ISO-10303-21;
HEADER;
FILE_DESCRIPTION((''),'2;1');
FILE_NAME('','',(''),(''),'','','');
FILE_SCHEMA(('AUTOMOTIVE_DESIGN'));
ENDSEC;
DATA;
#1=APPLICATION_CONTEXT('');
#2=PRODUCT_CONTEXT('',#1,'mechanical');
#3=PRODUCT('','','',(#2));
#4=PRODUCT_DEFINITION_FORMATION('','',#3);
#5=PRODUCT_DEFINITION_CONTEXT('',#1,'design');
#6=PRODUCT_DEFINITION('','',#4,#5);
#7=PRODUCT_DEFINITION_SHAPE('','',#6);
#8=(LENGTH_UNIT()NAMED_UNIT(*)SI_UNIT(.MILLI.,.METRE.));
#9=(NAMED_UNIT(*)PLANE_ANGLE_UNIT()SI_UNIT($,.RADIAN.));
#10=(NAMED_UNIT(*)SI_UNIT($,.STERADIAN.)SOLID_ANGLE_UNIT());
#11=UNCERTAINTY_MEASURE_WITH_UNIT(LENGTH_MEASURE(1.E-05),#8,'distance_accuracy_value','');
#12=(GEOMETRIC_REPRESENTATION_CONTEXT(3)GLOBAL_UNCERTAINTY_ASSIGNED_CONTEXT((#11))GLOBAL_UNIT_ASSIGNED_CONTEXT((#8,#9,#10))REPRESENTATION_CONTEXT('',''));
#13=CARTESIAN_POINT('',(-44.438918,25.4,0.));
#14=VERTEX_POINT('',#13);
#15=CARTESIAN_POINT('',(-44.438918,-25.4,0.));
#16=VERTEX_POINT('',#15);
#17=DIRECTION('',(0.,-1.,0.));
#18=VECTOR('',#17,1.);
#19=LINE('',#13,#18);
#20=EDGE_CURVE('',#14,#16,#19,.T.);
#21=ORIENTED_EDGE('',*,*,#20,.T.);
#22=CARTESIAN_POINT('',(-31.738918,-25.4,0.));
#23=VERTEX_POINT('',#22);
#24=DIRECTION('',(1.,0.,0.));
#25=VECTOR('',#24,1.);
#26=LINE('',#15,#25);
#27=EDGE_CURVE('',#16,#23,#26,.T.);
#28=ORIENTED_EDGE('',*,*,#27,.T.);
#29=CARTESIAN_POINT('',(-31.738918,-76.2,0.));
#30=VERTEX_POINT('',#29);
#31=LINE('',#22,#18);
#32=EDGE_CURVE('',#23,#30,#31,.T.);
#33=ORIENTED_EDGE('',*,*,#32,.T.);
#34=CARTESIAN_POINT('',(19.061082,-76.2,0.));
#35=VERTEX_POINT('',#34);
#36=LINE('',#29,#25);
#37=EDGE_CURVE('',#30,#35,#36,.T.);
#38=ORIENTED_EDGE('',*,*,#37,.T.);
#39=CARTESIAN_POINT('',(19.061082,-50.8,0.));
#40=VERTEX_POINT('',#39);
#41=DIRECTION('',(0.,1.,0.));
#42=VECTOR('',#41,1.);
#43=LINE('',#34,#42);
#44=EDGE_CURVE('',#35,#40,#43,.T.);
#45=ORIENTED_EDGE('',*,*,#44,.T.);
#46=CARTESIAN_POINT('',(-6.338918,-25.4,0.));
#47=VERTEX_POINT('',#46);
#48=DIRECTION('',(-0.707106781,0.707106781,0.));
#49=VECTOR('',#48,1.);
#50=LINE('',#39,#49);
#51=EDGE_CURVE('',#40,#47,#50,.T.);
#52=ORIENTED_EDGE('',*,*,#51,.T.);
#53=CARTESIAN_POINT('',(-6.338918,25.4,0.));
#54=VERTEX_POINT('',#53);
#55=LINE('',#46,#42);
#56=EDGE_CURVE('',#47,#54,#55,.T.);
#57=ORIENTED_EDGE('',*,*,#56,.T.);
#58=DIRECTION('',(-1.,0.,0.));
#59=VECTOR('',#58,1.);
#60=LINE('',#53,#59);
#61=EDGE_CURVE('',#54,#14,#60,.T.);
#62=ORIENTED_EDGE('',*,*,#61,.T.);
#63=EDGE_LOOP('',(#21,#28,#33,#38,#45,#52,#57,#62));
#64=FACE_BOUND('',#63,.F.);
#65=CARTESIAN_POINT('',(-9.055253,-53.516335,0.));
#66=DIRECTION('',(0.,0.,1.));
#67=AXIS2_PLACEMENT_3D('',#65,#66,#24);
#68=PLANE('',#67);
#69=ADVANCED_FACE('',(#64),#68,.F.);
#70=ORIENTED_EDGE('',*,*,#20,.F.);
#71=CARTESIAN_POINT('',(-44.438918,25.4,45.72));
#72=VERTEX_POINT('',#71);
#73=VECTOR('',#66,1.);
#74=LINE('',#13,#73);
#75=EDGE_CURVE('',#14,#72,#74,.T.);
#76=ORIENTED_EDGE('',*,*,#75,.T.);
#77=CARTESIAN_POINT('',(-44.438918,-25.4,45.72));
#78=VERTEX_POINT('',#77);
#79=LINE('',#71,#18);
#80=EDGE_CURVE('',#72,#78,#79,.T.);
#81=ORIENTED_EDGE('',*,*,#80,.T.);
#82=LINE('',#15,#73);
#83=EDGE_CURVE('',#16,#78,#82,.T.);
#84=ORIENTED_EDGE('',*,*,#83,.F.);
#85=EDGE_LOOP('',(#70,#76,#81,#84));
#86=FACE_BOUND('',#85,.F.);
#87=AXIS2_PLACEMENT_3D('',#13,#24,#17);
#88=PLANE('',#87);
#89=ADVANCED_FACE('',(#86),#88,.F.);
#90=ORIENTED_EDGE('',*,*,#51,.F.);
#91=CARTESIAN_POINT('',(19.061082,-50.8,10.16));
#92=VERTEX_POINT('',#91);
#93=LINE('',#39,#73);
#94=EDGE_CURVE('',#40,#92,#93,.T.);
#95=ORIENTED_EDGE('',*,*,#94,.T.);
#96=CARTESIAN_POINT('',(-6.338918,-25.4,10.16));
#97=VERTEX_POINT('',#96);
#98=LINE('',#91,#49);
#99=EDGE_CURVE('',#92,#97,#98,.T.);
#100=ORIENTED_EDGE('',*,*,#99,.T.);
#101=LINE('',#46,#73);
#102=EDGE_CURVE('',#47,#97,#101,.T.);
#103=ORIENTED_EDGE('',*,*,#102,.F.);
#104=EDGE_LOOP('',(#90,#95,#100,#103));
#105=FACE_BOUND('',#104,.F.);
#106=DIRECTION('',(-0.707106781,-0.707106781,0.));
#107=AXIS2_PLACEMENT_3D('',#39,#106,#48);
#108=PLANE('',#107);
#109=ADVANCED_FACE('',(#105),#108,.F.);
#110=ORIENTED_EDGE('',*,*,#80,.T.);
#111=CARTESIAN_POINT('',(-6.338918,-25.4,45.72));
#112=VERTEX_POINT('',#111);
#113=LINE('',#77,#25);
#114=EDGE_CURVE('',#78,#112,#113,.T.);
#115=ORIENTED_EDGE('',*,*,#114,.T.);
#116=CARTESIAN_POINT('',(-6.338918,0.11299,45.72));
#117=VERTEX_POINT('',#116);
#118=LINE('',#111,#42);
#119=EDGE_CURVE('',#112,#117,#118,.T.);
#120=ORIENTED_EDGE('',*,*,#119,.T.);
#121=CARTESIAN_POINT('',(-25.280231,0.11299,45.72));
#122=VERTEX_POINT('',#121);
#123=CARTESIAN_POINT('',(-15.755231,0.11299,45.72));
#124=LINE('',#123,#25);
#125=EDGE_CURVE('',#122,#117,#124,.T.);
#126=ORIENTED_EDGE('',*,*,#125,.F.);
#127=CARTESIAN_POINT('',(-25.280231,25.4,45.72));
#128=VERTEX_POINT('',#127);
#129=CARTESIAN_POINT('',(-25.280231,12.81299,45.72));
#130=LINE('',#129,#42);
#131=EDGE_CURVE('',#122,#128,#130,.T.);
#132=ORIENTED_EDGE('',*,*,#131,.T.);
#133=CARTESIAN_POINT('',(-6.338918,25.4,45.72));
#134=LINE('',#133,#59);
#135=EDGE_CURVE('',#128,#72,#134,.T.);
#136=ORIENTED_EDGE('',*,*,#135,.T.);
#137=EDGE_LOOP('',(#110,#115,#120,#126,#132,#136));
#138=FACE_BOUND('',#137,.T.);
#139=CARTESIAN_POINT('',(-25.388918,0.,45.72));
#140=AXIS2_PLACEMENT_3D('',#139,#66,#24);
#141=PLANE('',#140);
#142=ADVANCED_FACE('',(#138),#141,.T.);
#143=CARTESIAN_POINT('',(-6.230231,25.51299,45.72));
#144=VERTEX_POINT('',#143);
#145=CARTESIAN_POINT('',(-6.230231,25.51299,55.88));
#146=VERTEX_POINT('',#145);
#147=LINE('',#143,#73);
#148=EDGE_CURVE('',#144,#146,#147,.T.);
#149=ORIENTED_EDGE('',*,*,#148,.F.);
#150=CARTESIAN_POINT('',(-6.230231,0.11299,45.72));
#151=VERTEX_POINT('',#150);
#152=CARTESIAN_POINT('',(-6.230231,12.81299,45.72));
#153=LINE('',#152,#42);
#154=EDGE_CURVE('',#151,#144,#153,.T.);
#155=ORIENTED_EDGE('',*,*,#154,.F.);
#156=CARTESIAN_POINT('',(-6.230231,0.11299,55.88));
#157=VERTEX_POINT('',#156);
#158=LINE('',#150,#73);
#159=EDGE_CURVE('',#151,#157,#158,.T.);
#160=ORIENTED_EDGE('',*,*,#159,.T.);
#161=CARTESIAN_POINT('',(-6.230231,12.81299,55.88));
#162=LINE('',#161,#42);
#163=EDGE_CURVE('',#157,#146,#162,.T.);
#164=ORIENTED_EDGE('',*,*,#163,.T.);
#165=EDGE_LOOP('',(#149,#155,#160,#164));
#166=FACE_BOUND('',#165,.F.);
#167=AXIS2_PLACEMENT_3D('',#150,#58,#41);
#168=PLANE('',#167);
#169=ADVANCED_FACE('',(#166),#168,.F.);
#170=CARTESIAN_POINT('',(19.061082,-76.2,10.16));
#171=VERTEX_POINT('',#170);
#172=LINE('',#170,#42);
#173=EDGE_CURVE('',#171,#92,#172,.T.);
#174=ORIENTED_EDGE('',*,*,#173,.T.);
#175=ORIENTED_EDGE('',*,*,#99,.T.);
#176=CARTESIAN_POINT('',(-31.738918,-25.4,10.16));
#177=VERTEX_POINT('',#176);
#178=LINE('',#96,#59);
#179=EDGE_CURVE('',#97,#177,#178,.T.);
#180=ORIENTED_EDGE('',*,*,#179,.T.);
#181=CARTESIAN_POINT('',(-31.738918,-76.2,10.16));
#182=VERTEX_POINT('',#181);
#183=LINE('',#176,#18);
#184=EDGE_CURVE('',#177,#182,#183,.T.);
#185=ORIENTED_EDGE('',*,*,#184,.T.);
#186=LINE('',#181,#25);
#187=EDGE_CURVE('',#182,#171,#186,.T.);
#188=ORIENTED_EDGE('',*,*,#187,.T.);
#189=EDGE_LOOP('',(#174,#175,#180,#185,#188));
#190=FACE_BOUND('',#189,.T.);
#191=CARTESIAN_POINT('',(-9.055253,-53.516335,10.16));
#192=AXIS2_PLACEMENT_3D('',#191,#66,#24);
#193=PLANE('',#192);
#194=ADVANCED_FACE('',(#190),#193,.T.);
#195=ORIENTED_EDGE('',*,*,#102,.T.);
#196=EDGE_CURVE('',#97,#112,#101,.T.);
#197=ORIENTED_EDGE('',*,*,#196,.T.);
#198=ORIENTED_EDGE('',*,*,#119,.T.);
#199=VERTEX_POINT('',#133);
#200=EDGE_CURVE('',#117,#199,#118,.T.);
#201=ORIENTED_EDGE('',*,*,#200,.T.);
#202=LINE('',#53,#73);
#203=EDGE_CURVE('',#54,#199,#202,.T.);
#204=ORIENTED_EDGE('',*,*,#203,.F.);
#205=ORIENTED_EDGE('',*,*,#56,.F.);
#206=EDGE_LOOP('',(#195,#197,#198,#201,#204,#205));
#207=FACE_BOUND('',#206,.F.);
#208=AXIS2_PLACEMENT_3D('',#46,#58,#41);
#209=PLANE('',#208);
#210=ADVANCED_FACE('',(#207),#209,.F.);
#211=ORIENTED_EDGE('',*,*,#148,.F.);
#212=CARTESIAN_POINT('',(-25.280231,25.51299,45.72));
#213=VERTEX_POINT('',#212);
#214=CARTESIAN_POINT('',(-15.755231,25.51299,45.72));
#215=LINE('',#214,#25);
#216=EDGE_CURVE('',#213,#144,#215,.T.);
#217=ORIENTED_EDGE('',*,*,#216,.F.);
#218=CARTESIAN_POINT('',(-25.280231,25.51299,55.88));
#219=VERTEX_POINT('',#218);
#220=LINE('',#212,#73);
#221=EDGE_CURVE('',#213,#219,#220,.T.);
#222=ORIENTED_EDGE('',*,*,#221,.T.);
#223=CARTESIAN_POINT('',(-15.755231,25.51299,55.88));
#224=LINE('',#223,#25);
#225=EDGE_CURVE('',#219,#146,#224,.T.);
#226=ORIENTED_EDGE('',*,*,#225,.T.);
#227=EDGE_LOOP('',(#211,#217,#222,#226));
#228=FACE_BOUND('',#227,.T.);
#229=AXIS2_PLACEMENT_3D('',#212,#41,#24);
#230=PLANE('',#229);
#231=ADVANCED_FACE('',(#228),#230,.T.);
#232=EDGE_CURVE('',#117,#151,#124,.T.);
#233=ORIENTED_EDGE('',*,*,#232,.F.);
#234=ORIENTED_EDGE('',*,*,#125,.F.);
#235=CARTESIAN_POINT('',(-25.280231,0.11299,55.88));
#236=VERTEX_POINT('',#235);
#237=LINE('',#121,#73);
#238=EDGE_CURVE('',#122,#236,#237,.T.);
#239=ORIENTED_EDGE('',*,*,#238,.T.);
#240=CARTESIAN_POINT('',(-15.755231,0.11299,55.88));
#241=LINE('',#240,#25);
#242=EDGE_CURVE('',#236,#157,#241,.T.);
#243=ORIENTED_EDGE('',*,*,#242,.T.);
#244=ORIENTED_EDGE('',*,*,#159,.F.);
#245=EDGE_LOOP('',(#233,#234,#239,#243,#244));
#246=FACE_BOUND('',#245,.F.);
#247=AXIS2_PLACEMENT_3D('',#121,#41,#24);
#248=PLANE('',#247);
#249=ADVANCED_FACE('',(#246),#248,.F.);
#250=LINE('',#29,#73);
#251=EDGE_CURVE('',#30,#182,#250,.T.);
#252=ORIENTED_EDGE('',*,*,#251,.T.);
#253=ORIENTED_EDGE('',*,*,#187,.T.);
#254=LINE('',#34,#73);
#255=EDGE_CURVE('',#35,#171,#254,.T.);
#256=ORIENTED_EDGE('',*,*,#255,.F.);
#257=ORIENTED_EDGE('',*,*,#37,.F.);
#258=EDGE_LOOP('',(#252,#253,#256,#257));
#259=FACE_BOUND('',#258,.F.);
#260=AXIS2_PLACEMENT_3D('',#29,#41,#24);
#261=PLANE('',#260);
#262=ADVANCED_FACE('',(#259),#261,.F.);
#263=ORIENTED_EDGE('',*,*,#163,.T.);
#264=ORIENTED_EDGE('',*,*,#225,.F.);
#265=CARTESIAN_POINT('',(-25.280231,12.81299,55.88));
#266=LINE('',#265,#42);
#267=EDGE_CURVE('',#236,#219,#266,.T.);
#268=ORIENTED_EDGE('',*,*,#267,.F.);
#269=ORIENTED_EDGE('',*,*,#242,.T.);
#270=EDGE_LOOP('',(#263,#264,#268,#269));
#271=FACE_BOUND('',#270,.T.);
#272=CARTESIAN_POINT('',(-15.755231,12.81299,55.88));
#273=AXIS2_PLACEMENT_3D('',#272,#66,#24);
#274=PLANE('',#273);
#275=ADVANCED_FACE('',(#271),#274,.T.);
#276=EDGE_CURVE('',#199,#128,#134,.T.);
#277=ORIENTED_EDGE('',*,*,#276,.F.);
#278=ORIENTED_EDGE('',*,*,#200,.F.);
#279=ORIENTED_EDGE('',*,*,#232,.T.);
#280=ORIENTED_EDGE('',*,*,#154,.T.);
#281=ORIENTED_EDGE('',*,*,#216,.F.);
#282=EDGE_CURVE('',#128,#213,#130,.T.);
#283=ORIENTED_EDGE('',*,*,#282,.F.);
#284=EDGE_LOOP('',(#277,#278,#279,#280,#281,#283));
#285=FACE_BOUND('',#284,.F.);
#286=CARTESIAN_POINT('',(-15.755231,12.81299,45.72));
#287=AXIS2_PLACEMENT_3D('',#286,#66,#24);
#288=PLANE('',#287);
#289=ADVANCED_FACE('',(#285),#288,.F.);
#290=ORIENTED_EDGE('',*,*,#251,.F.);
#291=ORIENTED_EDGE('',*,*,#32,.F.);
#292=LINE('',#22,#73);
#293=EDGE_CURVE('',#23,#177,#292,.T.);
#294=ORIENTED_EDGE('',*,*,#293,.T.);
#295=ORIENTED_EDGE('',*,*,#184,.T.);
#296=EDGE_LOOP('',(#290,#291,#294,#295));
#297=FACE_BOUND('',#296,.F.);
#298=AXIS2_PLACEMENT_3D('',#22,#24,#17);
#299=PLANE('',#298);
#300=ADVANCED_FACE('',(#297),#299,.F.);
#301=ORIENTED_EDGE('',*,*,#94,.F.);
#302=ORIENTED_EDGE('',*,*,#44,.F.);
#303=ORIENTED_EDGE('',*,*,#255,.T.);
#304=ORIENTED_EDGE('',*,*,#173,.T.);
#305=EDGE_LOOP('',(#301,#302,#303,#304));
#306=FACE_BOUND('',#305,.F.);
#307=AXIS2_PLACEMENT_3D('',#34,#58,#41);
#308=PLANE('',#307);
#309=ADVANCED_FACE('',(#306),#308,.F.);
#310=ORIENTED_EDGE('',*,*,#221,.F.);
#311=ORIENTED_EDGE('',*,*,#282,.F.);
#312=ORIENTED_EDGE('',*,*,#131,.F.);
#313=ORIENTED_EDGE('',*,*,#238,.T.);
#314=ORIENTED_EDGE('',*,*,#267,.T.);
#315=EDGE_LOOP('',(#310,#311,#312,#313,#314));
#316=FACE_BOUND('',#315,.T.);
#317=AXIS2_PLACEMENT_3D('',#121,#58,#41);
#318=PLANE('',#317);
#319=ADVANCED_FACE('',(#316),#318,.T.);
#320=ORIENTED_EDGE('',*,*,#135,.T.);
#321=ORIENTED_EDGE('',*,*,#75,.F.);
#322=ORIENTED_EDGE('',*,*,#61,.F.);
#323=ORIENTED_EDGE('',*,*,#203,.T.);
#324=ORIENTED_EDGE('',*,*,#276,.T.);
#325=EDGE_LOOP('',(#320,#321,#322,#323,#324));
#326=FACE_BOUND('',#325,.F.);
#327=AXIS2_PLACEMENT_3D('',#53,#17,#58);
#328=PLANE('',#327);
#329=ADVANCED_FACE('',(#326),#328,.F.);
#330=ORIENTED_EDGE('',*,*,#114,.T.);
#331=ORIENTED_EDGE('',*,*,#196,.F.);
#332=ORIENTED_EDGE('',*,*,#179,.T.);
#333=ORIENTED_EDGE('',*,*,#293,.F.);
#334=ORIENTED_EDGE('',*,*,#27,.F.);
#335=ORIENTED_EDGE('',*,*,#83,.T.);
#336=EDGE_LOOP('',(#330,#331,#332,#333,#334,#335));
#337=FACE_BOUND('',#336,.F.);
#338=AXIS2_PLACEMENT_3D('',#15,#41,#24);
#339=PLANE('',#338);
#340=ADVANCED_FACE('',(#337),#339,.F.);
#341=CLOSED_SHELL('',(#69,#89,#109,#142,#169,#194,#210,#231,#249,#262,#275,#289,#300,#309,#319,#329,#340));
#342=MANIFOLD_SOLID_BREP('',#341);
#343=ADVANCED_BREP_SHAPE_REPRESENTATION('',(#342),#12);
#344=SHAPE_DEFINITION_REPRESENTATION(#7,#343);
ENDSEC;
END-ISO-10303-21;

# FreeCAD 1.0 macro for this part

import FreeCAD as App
import Part
import Sketcher
Q = App.Units.Quantity

doc = App.newDocument("Part")
params = doc.addObject("Spreadsheet::Sheet", "Params")
for row, (alias, value) in enumerate([
    ("sketch1_height", "2 in"),
    ("sketch1_width", "1.5 in"),
    ("pad1_length", "1.8 in"),
    ("sketch2_width", "1 in"),
    ("sketch2_width2", "2 in"),
    ("pad2_length", "0.4 in"),
    ("sketch3_height", "1 in"),
    ("sketch3_width", "0.75 in"),
    ("pad3_length", "0.4 in"),
], start=1):
    params.set(f"A{row}", alias)
    params.set(f"B{row}", "=" + value)
    params.setAlias(f"B{row}", alias)

body = doc.addObject("PartDesign::Body", "Body")

sketch1 = body.newObject("Sketcher::SketchObject", "Sketch")
sketch1.AttachmentSupport = (doc.getObject("XY_Plane"), [""])
sketch1.MapMode = "FlatFace"
sketch1.addGeometry([
    Part.LineSegment(App.Vector(-6, 25, 0), App.Vector(-44, 25, 0)),
    Part.LineSegment(App.Vector(-44, 25, 0), App.Vector(-44, -25, 0)),
    Part.LineSegment(App.Vector(-44, -25, 0), App.Vector(-6, -25, 0)),
    Part.LineSegment(App.Vector(-6, -25, 0), App.Vector(-6, 25, 0)),
], False)
sketch1.addConstraint([
    Sketcher.Constraint("Coincident", 0, 2, 1, 1),
    Sketcher.Constraint("Coincident", 1, 2, 2, 1),
    Sketcher.Constraint("Coincident", 2, 2, 3, 1),
    Sketcher.Constraint("Coincident", 3, 2, 0, 1),
    Sketcher.Constraint("Horizontal", 0),
    Sketcher.Constraint("Vertical", 1),
    Sketcher.Constraint("Horizontal", 2),
    Sketcher.Constraint("Vertical", 3),
    Sketcher.Constraint("DistanceY", 1, 2, 1, 1, Q("2 in")),
    Sketcher.Constraint("DistanceX", 0, 2, 0, 1, Q("1.5 in")),
    Sketcher.Constraint("DistanceY", -1, 1, 0, 2, Q("1 in")),
    Sketcher.Constraint("DistanceX", 0, 2, -1, 1, Q("44.438918 mm")),
])
sketch1.setExpression("Constraints[8]", "Params.sketch1_height")
sketch1.setExpression("Constraints[9]", "Params.sketch1_width")
pad1 = body.newObject("PartDesign::Pad", "Pad")
pad1.Profile = sketch1
pad1.setExpression("Length", "Params.pad1_length")

sketch2 = body.newObject("Sketcher::SketchObject", "Sketch001")
sketch2.AttachmentSupport = (doc.getObject("XY_Plane"), [""])
sketch2.MapMode = "FlatFace"
sketch2.addGeometry([
    Part.LineSegment(App.Vector(19, -51, 0), App.Vector(-6, -25, 0)),
    Part.LineSegment(App.Vector(-6, -25, 0), App.Vector(-32, -25, 0)),
    Part.LineSegment(App.Vector(-32, -25, 0), App.Vector(-32, -76, 0)),
    Part.LineSegment(App.Vector(-32, -76, 0), App.Vector(19, -76, 0)),
    Part.LineSegment(App.Vector(19, -76, 0), App.Vector(19, -51, 0)),
], False)
sketch2.addConstraint([
    Sketcher.Constraint("Coincident", 0, 2, 1, 1),
    Sketcher.Constraint("Coincident", 1, 2, 2, 1),
    Sketcher.Constraint("Coincident", 2, 2, 3, 1),
    Sketcher.Constraint("Coincident", 3, 2, 4, 1),
    Sketcher.Constraint("Coincident", 4, 2, 0, 1),
    Sketcher.Constraint("Horizontal", 1),
    Sketcher.Constraint("Vertical", 2),
    Sketcher.Constraint("Horizontal", 3),
    Sketcher.Constraint("Vertical", 4),
    Sketcher.Constraint("Equal", 3, 2),
    Sketcher.Constraint("Equal", 1, 4),
    Sketcher.Constraint("DistanceX", 1, 2, 1, 1, Q("1 in")),
    Sketcher.Constraint("DistanceX", 3, 1, 3, 2, Q("2 in")),
    Sketcher.Constraint("DistanceY", 0, 2, -1, 1, Q("1 in")),
    Sketcher.Constraint("DistanceX", 1, 2, -1, 1, Q("31.738918 mm")),
])
sketch2.setExpression("Constraints[11]", "Params.sketch2_width")
sketch2.setExpression("Constraints[12]", "Params.sketch2_width2")
pad2 = body.newObject("PartDesign::Pad", "Pad001")
pad2.Profile = sketch2
pad2.setExpression("Length", "Params.pad2_length")

sketch3 = body.newObject("Sketcher::SketchObject", "Sketch002")
sketch3.AttachmentSupport = (doc.getObject("XY_Plane"), [""])
sketch3.MapMode = "FlatFace"
sketch3.AttachmentOffset = App.Placement(App.Vector(0, 0, 1.8 * 25.4), App.Rotation())
sketch3.addGeometry([
    Part.LineSegment(App.Vector(-25, 26, 0), App.Vector(-25, 0, 0)),
    Part.LineSegment(App.Vector(-25, 0, 0), App.Vector(-6, 0, 0)),
    Part.LineSegment(App.Vector(-6, 0, 0), App.Vector(-6, 26, 0)),
    Part.LineSegment(App.Vector(-6, 26, 0), App.Vector(-25, 26, 0)),
], False)
sketch3.addConstraint([
    Sketcher.Constraint("Coincident", 0, 2, 1, 1),
    Sketcher.Constraint("Coincident", 1, 2, 2, 1),
    Sketcher.Constraint("Coincident", 2, 2, 3, 1),
    Sketcher.Constraint("Coincident", 3, 2, 0, 1),
    Sketcher.Constraint("Vertical", 0),
    Sketcher.Constraint("Horizontal", 1),
    Sketcher.Constraint("Vertical", 2),
    Sketcher.Constraint("Horizontal", 3),
    Sketcher.Constraint("DistanceY", 0, 2, 0, 1, Q("1 in")),
    Sketcher.Constraint("DistanceX", 1, 1, 1, 2, Q("0.75 in")),
    Sketcher.Constraint("DistanceX", 0, 2, -1, 1, Q("25.280231 mm")),
    Sketcher.Constraint("DistanceY", -1, 1, 0, 2, Q("0.11299 mm")),
])
sketch3.setExpression("Constraints[8]", "Params.sketch3_height")
sketch3.setExpression("Constraints[9]", "Params.sketch3_width")
pad3 = body.newObject("PartDesign::Pad", "Pad002")
pad3.Profile = sketch3
pad3.setExpression("Length", "Params.pad3_length")

doc.recompute()
